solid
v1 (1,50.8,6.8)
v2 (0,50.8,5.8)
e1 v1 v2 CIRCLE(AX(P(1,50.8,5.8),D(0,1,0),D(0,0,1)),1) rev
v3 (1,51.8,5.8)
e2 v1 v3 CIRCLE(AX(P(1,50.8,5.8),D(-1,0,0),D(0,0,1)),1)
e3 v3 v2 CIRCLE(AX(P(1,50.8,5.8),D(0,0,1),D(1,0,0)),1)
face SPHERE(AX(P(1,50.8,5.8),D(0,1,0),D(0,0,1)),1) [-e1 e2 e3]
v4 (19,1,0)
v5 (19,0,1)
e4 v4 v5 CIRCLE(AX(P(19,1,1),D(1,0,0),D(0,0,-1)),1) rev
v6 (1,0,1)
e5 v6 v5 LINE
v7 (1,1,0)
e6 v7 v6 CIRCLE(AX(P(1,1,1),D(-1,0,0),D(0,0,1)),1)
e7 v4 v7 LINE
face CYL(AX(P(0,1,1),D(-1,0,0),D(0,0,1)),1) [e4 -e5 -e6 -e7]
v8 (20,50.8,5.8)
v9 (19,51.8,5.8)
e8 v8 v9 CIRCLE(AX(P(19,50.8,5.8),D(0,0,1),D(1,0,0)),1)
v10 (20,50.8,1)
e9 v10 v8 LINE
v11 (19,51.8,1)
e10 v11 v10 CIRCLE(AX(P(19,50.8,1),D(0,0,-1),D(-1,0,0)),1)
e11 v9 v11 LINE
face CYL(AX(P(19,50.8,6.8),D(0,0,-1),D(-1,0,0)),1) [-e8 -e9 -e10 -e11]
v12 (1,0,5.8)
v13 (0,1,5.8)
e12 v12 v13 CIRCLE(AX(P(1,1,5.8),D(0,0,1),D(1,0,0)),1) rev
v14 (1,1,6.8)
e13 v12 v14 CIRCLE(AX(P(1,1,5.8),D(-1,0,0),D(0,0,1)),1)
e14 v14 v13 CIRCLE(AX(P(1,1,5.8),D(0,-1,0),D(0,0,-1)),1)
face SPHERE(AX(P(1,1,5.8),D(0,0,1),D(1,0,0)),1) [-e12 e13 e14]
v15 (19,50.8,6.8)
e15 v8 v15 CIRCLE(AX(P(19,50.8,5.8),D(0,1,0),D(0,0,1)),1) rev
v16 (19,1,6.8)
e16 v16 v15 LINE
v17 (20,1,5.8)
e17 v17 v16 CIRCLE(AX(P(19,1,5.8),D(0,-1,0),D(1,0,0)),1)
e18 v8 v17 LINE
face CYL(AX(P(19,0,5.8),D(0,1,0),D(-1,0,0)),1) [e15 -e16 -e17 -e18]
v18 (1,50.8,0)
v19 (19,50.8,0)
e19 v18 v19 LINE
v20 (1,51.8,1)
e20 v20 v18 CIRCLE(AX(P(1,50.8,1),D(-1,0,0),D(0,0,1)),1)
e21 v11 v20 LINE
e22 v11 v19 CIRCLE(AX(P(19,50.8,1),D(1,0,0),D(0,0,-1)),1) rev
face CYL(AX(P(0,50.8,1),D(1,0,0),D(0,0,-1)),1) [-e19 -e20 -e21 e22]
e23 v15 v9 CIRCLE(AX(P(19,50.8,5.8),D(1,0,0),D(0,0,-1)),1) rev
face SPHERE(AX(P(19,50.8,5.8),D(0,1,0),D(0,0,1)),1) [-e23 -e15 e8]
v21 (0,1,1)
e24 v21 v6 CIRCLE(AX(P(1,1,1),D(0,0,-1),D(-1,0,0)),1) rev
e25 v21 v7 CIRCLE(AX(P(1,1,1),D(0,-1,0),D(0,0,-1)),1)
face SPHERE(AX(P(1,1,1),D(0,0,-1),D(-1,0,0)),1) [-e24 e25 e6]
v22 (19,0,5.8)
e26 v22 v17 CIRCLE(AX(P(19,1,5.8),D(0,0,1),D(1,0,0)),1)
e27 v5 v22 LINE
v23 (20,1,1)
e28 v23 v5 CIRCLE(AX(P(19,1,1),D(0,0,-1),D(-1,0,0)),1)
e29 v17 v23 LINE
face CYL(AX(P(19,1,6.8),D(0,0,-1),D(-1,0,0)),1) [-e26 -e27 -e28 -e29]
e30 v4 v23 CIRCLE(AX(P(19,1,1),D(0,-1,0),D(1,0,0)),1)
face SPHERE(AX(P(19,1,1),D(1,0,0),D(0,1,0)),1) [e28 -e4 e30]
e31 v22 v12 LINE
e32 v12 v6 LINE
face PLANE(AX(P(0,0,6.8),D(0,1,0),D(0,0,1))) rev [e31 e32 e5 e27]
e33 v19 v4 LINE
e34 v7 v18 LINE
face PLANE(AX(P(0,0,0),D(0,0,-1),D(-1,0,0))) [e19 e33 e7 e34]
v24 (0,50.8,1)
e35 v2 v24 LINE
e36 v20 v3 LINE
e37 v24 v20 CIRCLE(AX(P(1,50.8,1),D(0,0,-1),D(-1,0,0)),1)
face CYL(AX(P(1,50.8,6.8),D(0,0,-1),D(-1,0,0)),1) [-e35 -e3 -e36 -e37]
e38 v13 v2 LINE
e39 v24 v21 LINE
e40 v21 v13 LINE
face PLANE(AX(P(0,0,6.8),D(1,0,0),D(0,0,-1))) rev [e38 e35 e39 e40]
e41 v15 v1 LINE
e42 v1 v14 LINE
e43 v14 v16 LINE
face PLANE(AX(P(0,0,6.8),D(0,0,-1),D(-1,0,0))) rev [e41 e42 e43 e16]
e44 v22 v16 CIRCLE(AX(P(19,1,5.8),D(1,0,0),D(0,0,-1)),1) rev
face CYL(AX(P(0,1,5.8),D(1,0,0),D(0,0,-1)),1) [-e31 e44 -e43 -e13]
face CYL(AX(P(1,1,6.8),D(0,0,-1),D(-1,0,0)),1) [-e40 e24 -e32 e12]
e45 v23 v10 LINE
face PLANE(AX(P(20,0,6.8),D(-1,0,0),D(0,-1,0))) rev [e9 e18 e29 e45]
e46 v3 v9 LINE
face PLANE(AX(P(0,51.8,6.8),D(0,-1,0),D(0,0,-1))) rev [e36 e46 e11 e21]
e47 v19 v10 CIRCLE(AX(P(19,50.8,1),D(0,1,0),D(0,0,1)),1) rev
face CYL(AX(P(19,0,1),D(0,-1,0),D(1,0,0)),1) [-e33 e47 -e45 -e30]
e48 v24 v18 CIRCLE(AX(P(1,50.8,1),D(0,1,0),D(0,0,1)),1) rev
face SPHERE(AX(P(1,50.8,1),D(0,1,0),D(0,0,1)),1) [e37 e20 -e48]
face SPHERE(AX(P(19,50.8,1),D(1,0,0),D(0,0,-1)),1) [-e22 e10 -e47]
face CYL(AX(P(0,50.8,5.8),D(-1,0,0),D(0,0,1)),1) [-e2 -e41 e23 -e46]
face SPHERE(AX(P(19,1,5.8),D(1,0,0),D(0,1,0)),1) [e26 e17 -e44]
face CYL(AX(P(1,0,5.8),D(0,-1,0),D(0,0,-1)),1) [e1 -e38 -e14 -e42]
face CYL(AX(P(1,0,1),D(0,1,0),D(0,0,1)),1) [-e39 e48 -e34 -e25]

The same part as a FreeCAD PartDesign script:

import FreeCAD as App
import Part
import Sketcher

V = App.Vector

doc = App.newDocument("Part")
params = doc.addObject("Spreadsheet::Sheet", "Params")
for row, (alias, value) in enumerate([
    ("sketch1_width", "20 mm"),
    ("sketch1_height", "51.8 mm"),
    ("pad1_length", "6.8 mm"),
    ("fillet_radius", "1 mm"),
], start=1):
    params.set(f"A{row}", alias)
    params.set(f"B{row}", "=" + value)
    params.setAlias(f"B{row}", alias)

body = doc.addObject("PartDesign::Body", "Body")

# Sketch on XY plane
sketch1 = body.newObject("Sketcher::SketchObject", "Sketch")
sketch1.AttachmentSupport = (doc.getObject("XY_Plane"), [""])
sketch1.MapMode = "FlatFace"
sketch1.addGeometry([
    Part.LineSegment(V(0, 52, 0), V(0, 0, 0)),
    Part.LineSegment(V(0, 0, 0), V(20, 0, 0)),
    Part.LineSegment(V(20, 0, 0), V(20, 52, 0)),
    Part.LineSegment(V(20, 52, 0), V(0, 52, 0)),
], False)
sketch1.addConstraint([
    Sketcher.Constraint("Coincident", 0, 2, 1, 1),
    Sketcher.Constraint("Coincident", 1, 2, 2, 1),
    Sketcher.Constraint("Coincident", 2, 2, 3, 1),
    Sketcher.Constraint("Coincident", 3, 2, 0, 1),
    Sketcher.Constraint("Vertical", 0),
    Sketcher.Constraint("Horizontal", 1),
    Sketcher.Constraint("Vertical", 2),
    Sketcher.Constraint("Horizontal", 3),
    Sketcher.Constraint("Coincident", 0, 2, -1, 1),
    Sketcher.Constraint("DistanceX", 1, 1, 1, 2, 20.0),
    Sketcher.Constraint("DistanceY", 0, 2, 0, 1, 51.8),
])
sketch1.setExpression("Constraints[9]", "Params.sketch1_width")
sketch1.setExpression("Constraints[10]", "Params.sketch1_height")
pad1 = body.newObject("PartDesign::Pad", "Pad")
pad1.Profile = sketch1
pad1.setExpression("Length", "Params.pad1_length")
doc.recompute()

fillet = body.newObject("PartDesign::Fillet", "Fillet")
fillet.Base = (pad1, ["Edge1"])
fillet.UseAllEdges = True
fillet.setExpression("Radius", "Params.fillet_radius")

doc.recompute()
